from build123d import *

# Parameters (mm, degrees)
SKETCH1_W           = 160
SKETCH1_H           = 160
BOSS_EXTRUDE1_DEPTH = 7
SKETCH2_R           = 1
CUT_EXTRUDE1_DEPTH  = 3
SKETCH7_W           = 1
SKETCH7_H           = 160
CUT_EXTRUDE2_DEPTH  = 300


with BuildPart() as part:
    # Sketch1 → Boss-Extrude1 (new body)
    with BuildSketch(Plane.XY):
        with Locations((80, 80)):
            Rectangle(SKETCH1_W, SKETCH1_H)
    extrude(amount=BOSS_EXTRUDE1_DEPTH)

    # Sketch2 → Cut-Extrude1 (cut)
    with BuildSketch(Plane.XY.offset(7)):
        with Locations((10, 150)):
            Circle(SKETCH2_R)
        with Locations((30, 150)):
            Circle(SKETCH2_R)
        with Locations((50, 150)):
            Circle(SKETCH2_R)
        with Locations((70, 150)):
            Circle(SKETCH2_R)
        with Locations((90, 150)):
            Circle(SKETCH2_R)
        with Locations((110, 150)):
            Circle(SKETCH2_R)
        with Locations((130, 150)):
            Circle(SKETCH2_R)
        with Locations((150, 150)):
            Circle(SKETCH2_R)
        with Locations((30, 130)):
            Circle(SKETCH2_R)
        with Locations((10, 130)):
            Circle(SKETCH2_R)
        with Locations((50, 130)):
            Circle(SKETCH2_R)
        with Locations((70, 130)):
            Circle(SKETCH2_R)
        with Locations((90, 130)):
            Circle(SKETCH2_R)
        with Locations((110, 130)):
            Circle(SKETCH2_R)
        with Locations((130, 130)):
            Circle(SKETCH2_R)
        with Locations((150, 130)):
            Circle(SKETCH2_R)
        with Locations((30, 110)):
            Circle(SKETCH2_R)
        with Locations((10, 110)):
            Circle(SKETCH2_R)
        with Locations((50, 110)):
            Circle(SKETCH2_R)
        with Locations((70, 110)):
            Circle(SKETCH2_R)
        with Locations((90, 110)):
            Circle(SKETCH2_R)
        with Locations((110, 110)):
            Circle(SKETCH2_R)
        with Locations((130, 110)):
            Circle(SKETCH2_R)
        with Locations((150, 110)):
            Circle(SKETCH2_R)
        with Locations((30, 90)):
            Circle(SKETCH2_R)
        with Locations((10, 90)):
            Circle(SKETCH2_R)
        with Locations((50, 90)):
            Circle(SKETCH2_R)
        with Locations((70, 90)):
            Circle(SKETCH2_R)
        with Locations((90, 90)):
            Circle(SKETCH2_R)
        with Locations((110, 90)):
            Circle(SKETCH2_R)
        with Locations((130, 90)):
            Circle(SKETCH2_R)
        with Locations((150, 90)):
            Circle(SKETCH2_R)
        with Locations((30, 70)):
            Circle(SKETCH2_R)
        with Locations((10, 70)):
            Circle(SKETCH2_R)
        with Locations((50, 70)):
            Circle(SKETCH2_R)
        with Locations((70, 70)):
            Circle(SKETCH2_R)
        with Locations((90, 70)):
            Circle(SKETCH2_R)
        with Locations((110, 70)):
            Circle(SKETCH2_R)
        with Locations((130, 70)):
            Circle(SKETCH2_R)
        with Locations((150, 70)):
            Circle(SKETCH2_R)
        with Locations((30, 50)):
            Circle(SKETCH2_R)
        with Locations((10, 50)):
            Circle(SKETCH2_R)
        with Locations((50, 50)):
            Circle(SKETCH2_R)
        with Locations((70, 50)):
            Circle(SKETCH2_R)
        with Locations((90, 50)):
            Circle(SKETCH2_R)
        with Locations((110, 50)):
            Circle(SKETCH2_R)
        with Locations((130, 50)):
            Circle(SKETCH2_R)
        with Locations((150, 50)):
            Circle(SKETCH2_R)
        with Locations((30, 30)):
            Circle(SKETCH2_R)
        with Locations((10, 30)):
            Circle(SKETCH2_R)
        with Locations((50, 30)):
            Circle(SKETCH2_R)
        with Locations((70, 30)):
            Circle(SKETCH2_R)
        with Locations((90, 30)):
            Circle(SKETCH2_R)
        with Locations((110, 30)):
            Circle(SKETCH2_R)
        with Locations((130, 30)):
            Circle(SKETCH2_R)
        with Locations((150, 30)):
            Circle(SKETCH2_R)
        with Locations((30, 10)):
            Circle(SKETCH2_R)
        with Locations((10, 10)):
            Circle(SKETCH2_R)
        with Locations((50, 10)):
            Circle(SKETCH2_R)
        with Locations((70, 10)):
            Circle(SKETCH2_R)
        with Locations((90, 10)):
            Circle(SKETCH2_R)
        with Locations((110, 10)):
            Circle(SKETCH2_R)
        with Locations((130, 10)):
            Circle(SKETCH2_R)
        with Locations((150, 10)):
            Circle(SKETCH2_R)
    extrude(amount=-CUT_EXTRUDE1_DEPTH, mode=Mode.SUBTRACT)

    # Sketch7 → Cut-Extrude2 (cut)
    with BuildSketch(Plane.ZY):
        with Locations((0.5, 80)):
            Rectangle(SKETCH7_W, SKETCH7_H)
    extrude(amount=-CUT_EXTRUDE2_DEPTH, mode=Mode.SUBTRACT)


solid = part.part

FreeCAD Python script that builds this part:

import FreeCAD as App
import Part
import Sketcher

V = App.Vector
Q = App.Units.Quantity

doc = App.newDocument("Part")
params = doc.addObject("Spreadsheet::Sheet", "Params")
for row, (alias, value) in enumerate([
    ("sketch1_width", "160 mm"),
    ("pad1_length", "7 mm"),
    ("sketch2_diameter", "2 mm"),
    ("pocket1_length", "3 mm"),
    ("sketch3_width", "160 mm"),
    ("sketch3_height", "1 mm"),
    ("pocket2_length", "300 mm"),
], start=1):
    params.set(f"A{row}", alias)
    params.set(f"B{row}", "=" + value)
    params.setAlias(f"B{row}", alias)

body = doc.addObject("PartDesign::Body", "Body")

# Sketch on XY plane
sketch1 = body.newObject("Sketcher::SketchObject", "Sketch")
sketch1.AttachmentSupport = (doc.getObject("XY_Plane"), [""])
sketch1.MapMode = "FlatFace"
sketch1.addGeometry([
    Part.LineSegment(V(0, 160, 0), V(0, 0, 0)),
    Part.LineSegment(V(0, 0, 0), V(160, 0, 0)),
    Part.LineSegment(V(160, 0, 0), V(160, 160, 0)),
    Part.LineSegment(V(160, 160, 0), V(0, 160, 0)),
], False)
sketch1.addConstraint([
    Sketcher.Constraint("Coincident", 0, 2, 1, 1),
    Sketcher.Constraint("Coincident", 1, 2, 2, 1),
    Sketcher.Constraint("Coincident", 2, 2, 3, 1),
    Sketcher.Constraint("Coincident", 3, 2, 0, 1),
    Sketcher.Constraint("Vertical", 0),
    Sketcher.Constraint("Horizontal", 1),
    Sketcher.Constraint("Vertical", 2),
    Sketcher.Constraint("Horizontal", 3),
    Sketcher.Constraint("Coincident", 0, 2, -1, 1),
    Sketcher.Constraint("Equal", 3, 0),
    Sketcher.Constraint("DistanceX", 1, 1, 1, 2, Q("160 mm")),
])
sketch1.setExpression("Constraints[10]", "Params.sketch1_width")
pad1 = body.newObject("PartDesign::Pad", "Pad")
pad1.Profile = sketch1
pad1.setExpression("Length", "Params.pad1_length")

# Sketch on XY plane
sketch2 = body.newObject("Sketcher::SketchObject", "Sketch001")
sketch2.AttachmentSupport = (doc.getObject("XY_Plane"), [""])
sketch2.MapMode = "FlatFace"
sketch2.AttachmentOffset = App.Placement(V(0, 0, 7), App.Rotation())
sketch2.addGeometry([
    Part.Circle(V(10, 150, 0), V(0, 0, 1), 1),  # 0
    Part.Circle(V(30, 150, 0), V(0, 0, 1), 1),  # 1
    Part.Circle(V(50, 150, 0), V(0, 0, 1), 1),  # 2
    Part.Circle(V(70, 150, 0), V(0, 0, 1), 1),  # 3
    Part.Circle(V(90, 150, 0), V(0, 0, 1), 1),  # 4
    Part.Circle(V(110, 150, 0), V(0, 0, 1), 1),  # 5
    Part.Circle(V(130, 150, 0), V(0, 0, 1), 1),  # 6
    Part.Circle(V(150, 150, 0), V(0, 0, 1), 1),  # 7
    Part.Circle(V(30, 130, 0), V(0, 0, 1), 1),  # 8
    Part.Circle(V(10, 130, 0), V(0, 0, 1), 1),  # 9
    Part.Circle(V(50, 130, 0), V(0, 0, 1), 1),  # 10
    Part.Circle(V(70, 130, 0), V(0, 0, 1), 1),  # 11
    Part.Circle(V(90, 130, 0), V(0, 0, 1), 1),  # 12
    Part.Circle(V(110, 130, 0), V(0, 0, 1), 1),  # 13
    Part.Circle(V(130, 130, 0), V(0, 0, 1), 1),  # 14
    Part.Circle(V(150, 130, 0), V(0, 0, 1), 1),  # 15
    Part.Circle(V(30, 110, 0), V(0, 0, 1), 1),  # 16
    Part.Circle(V(10, 110, 0), V(0, 0, 1), 1),  # 17
    Part.Circle(V(50, 110, 0), V(0, 0, 1), 1),  # 18
    Part.Circle(V(70, 110, 0), V(0, 0, 1), 1),  # 19
    Part.Circle(V(90, 110, 0), V(0, 0, 1), 1),  # 20
    Part.Circle(V(110, 110, 0), V(0, 0, 1), 1),  # 21
    Part.Circle(V(130, 110, 0), V(0, 0, 1), 1),  # 22
    Part.Circle(V(150, 110, 0), V(0, 0, 1), 1),  # 23
    Part.Circle(V(30, 90, 0), V(0, 0, 1), 1),  # 24
    Part.Circle(V(10, 90, 0), V(0, 0, 1), 1),  # 25
    Part.Circle(V(50, 90, 0), V(0, 0, 1), 1),  # 26
    Part.Circle(V(70, 90, 0), V(0, 0, 1), 1),  # 27
    Part.Circle(V(90, 90, 0), V(0, 0, 1), 1),  # 28
    Part.Circle(V(110, 90, 0), V(0, 0, 1), 1),  # 29
    Part.Circle(V(130, 90, 0), V(0, 0, 1), 1),  # 30
    Part.Circle(V(150, 90, 0), V(0, 0, 1), 1),  # 31
    Part.Circle(V(30, 70, 0), V(0, 0, 1), 1),  # 32
    Part.Circle(V(10, 70, 0), V(0, 0, 1), 1),  # 33
    Part.Circle(V(50, 70, 0), V(0, 0, 1), 1),  # 34
    Part.Circle(V(70, 70, 0), V(0, 0, 1), 1),  # 35
    Part.Circle(V(90, 70, 0), V(0, 0, 1), 1),  # 36
    Part.Circle(V(110, 70, 0), V(0, 0, 1), 1),  # 37
    Part.Circle(V(130, 70, 0), V(0, 0, 1), 1),  # 38
    Part.Circle(V(150, 70, 0), V(0, 0, 1), 1),  # 39
    Part.Circle(V(30, 50, 0), V(0, 0, 1), 1),  # 40
    Part.Circle(V(10, 50, 0), V(0, 0, 1), 1),  # 41
    Part.Circle(V(50, 50, 0), V(0, 0, 1), 1),  # 42
    Part.Circle(V(70, 50, 0), V(0, 0, 1), 1),  # 43
    Part.Circle(V(90, 50, 0), V(0, 0, 1), 1),  # 44
    Part.Circle(V(110, 50, 0), V(0, 0, 1), 1),  # 45
    Part.Circle(V(130, 50, 0), V(0, 0, 1), 1),  # 46
    Part.Circle(V(150, 50, 0), V(0, 0, 1), 1),  # 47
    Part.Circle(V(30, 30, 0), V(0, 0, 1), 1),  # 48
    Part.Circle(V(10, 30, 0), V(0, 0, 1), 1),  # 49
    Part.Circle(V(50, 30, 0), V(0, 0, 1), 1),  # 50
    Part.Circle(V(70, 30, 0), V(0, 0, 1), 1),  # 51
    Part.Circle(V(90, 30, 0), V(0, 0, 1), 1),  # 52
    Part.Circle(V(110, 30, 0), V(0, 0, 1), 1),  # 53
    Part.Circle(V(130, 30, 0), V(0, 0, 1), 1),  # 54
    Part.Circle(V(150, 30, 0), V(0, 0, 1), 1),  # 55
    Part.Circle(V(30, 10, 0), V(0, 0, 1), 1),  # 56
    Part.Circle(V(10, 10, 0), V(0, 0, 1), 1),  # 57
    Part.Circle(V(50, 10, 0), V(0, 0, 1), 1),  # 58
    Part.Circle(V(70, 10, 0), V(0, 0, 1), 1),  # 59
    Part.Circle(V(90, 10, 0), V(0, 0, 1), 1),  # 60
    Part.Circle(V(110, 10, 0), V(0, 0, 1), 1),  # 61
    Part.Circle(V(130, 10, 0), V(0, 0, 1), 1),  # 62
    Part.Circle(V(150, 10, 0), V(0, 0, 1), 1),  # 63
], False)
sketch2.addConstraint([
    Sketcher.Constraint("Equal", 0, 1),
    Sketcher.Constraint("Equal", 1, 2),
    Sketcher.Constraint("Equal", 2, 3),
    Sketcher.Constraint("Equal", 3, 4),
    Sketcher.Constraint("Equal", 4, 5),
    Sketcher.Constraint("Equal", 5, 6),
    Sketcher.Constraint("Equal", 6, 7),
    Sketcher.Constraint("Equal", 7, 8),
    Sketcher.Constraint("Equal", 8, 9),
    Sketcher.Constraint("Equal", 9, 10),
    Sketcher.Constraint("Equal", 10, 11),
    Sketcher.Constraint("Equal", 11, 12),
    Sketcher.Constraint("Equal", 12, 13),
    Sketcher.Constraint("Equal", 13, 14),
    Sketcher.Constraint("Equal", 14, 15),
    Sketcher.Constraint("Equal", 15, 16),
    Sketcher.Constraint("Equal", 16, 17),
    Sketcher.Constraint("Equal", 17, 18),
    Sketcher.Constraint("Equal", 18, 19),
    Sketcher.Constraint("Equal", 19, 20),
    Sketcher.Constraint("Equal", 20, 21),
    Sketcher.Constraint("Equal", 21, 22),
    Sketcher.Constraint("Equal", 22, 23),
    Sketcher.Constraint("Equal", 23, 24),
    Sketcher.Constraint("Equal", 24, 25),
    Sketcher.Constraint("Equal", 25, 26),
    Sketcher.Constraint("Equal", 26, 27),
    Sketcher.Constraint("Equal", 27, 28),
    Sketcher.Constraint("Equal", 28, 29),
    Sketcher.Constraint("Equal", 29, 30),
    Sketcher.Constraint("Equal", 30, 31),
    Sketcher.Constraint("Equal", 31, 32),
    Sketcher.Constraint("Equal", 32, 33),
    Sketcher.Constraint("Equal", 33, 34),
    Sketcher.Constraint("Equal", 34, 35),
    Sketcher.Constraint("Equal", 35, 36),
    Sketcher.Constraint("Equal", 36, 37),
    Sketcher.Constraint("Equal", 37, 38),
    Sketcher.Constraint("Equal", 38, 39),
    Sketcher.Constraint("Equal", 39, 40),
    Sketcher.Constraint("Equal", 40, 41),
    Sketcher.Constraint("Equal", 41, 42),
    Sketcher.Constraint("Equal", 42, 43),
    Sketcher.Constraint("Equal", 43, 44),
    Sketcher.Constraint("Equal", 44, 45),
    Sketcher.Constraint("Equal", 45, 46),
    Sketcher.Constraint("Equal", 46, 47),
    Sketcher.Constraint("Equal", 47, 48),
    Sketcher.Constraint("Equal", 48, 49),
    Sketcher.Constraint("Equal", 49, 50),
    Sketcher.Constraint("Equal", 50, 51),
    Sketcher.Constraint("Equal", 51, 52),
    Sketcher.Constraint("Equal", 52, 53),
    Sketcher.Constraint("Equal", 53, 54),
    Sketcher.Constraint("Equal", 54, 55),
    Sketcher.Constraint("Equal", 55, 56),
    Sketcher.Constraint("Equal", 56, 57),
    Sketcher.Constraint("Equal", 57, 58),
    Sketcher.Constraint("Equal", 58, 59),
    Sketcher.Constraint("Equal", 59, 60),
    Sketcher.Constraint("Equal", 60, 61),
    Sketcher.Constraint("Equal", 61, 62),
    Sketcher.Constraint("Equal", 62, 63),
    Sketcher.Constraint("Horizontal", 0, 3, 1, 3),
    Sketcher.Constraint("Horizontal", 1, 3, 2, 3),
    Sketcher.Constraint("Horizontal", 2, 3, 3, 3),
    Sketcher.Constraint("Horizontal", 3, 3, 4, 3),
    Sketcher.Constraint("Horizontal", 4, 3, 5, 3),
    Sketcher.Constraint("Horizontal", 5, 3, 6, 3),
    Sketcher.Constraint("Horizontal", 6, 3, 7, 3),
    Sketcher.Constraint("Horizontal", 8, 3, 9, 3),
    Sketcher.Constraint("Horizontal", 9, 3, 10, 3),
    Sketcher.Constraint("Horizontal", 10, 3, 11, 3),
    Sketcher.Constraint("Horizontal", 11, 3, 12, 3),
    Sketcher.Constraint("Horizontal", 12, 3, 13, 3),
    Sketcher.Constraint("Horizontal", 13, 3, 14, 3),
    Sketcher.Constraint("Horizontal", 14, 3, 15, 3),
    Sketcher.Constraint("Horizontal", 16, 3, 17, 3),
    Sketcher.Constraint("Horizontal", 17, 3, 18, 3),
    Sketcher.Constraint("Horizontal", 18, 3, 19, 3),
    Sketcher.Constraint("Horizontal", 19, 3, 20, 3),
    Sketcher.Constraint("Horizontal", 20, 3, 21, 3),
    Sketcher.Constraint("Horizontal", 21, 3, 22, 3),
    Sketcher.Constraint("Horizontal", 22, 3, 23, 3),
    Sketcher.Constraint("Horizontal", 24, 3, 25, 3),
    Sketcher.Constraint("Horizontal", 25, 3, 26, 3),
    Sketcher.Constraint("Horizontal", 26, 3, 27, 3),
    Sketcher.Constraint("Horizontal", 27, 3, 28, 3),
    Sketcher.Constraint("Horizontal", 28, 3, 29, 3),
    Sketcher.Constraint("Horizontal", 29, 3, 30, 3),
    Sketcher.Constraint("Horizontal", 30, 3, 31, 3),
    Sketcher.Constraint("Horizontal", 32, 3, 33, 3),
    Sketcher.Constraint("Horizontal", 33, 3, 34, 3),
    Sketcher.Constraint("Horizontal", 34, 3, 35, 3),
    Sketcher.Constraint("Horizontal", 35, 3, 36, 3),
    Sketcher.Constraint("Horizontal", 36, 3, 37, 3),
    Sketcher.Constraint("Horizontal", 37, 3, 38, 3),
    Sketcher.Constraint("Horizontal", 38, 3, 39, 3),
    Sketcher.Constraint("Horizontal", 40, 3, 41, 3),
    Sketcher.Constraint("Horizontal", 41, 3, 42, 3),
    Sketcher.Constraint("Horizontal", 42, 3, 43, 3),
    Sketcher.Constraint("Horizontal", 43, 3, 44, 3),
    Sketcher.Constraint("Horizontal", 44, 3, 45, 3),
    Sketcher.Constraint("Horizontal", 45, 3, 46, 3),
    Sketcher.Constraint("Horizontal", 46, 3, 47, 3),
    Sketcher.Constraint("Horizontal", 48, 3, 49, 3),
    Sketcher.Constraint("Horizontal", 49, 3, 50, 3),
    Sketcher.Constraint("Horizontal", 50, 3, 51, 3),
    Sketcher.Constraint("Horizontal", 51, 3, 52, 3),
    Sketcher.Constraint("Horizontal", 52, 3, 53, 3),
    Sketcher.Constraint("Horizontal", 53, 3, 54, 3),
    Sketcher.Constraint("Horizontal", 54, 3, 55, 3),
    Sketcher.Constraint("Horizontal", 56, 3, 57, 3),
    Sketcher.Constraint("Horizontal", 57, 3, 58, 3),
    Sketcher.Constraint("Horizontal", 58, 3, 59, 3),
    Sketcher.Constraint("Horizontal", 59, 3, 60, 3),
    Sketcher.Constraint("Horizontal", 60, 3, 61, 3),
    Sketcher.Constraint("Horizontal", 61, 3, 62, 3),
    Sketcher.Constraint("Horizontal", 62, 3, 63, 3),
    Sketcher.Constraint("Vertical", 1, 3, 8, 3),
    Sketcher.Constraint("Vertical", 0, 3, 9, 3),
    Sketcher.Constraint("Vertical", 2, 3, 10, 3),
    Sketcher.Constraint("Vertical", 3, 3, 11, 3),
    Sketcher.Constraint("Vertical", 4, 3, 12, 3),
    Sketcher.Constraint("Vertical", 5, 3, 13, 3),
    Sketcher.Constraint("Vertical", 6, 3, 14, 3),
    Sketcher.Constraint("Vertical", 7, 3, 15, 3),
    Sketcher.Constraint("Vertical", 8, 3, 16, 3),
    Sketcher.Constraint("Vertical", 9, 3, 17, 3),
    Sketcher.Constraint("Vertical", 10, 3, 18, 3),
    Sketcher.Constraint("Vertical", 11, 3, 19, 3),
    Sketcher.Constraint("Vertical", 12, 3, 20, 3),
    Sketcher.Constraint("Vertical", 13, 3, 21, 3),
    Sketcher.Constraint("Vertical", 14, 3, 22, 3),
    Sketcher.Constraint("Vertical", 15, 3, 23, 3),
    Sketcher.Constraint("Vertical", 16, 3, 24, 3),
    Sketcher.Constraint("Vertical", 17, 3, 25, 3),
    Sketcher.Constraint("Vertical", 18, 3, 26, 3),
    Sketcher.Constraint("Vertical", 19, 3, 27, 3),
    Sketcher.Constraint("Vertical", 20, 3, 28, 3),
    Sketcher.Constraint("Vertical", 21, 3, 29, 3),
    Sketcher.Constraint("Vertical", 22, 3, 30, 3),
    Sketcher.Constraint("Vertical", 23, 3, 31, 3),
    Sketcher.Constraint("Vertical", 24, 3, 32, 3),
    Sketcher.Constraint("Vertical", 25, 3, 33, 3),
    Sketcher.Constraint("Vertical", 26, 3, 34, 3),
    Sketcher.Constraint("Vertical", 27, 3, 35, 3),
    Sketcher.Constraint("Vertical", 28, 3, 36, 3),
    Sketcher.Constraint("Vertical", 29, 3, 37, 3),
    Sketcher.Constraint("Vertical", 30, 3, 38, 3),
    Sketcher.Constraint("Vertical", 31, 3, 39, 3),
    Sketcher.Constraint("Vertical", 32, 3, 40, 3),
    Sketcher.Constraint("Vertical", 33, 3, 41, 3),
    Sketcher.Constraint("Vertical", 34, 3, 42, 3),
    Sketcher.Constraint("Vertical", 35, 3, 43, 3),
    Sketcher.Constraint("Vertical", 36, 3, 44, 3),
    Sketcher.Constraint("Vertical", 37, 3, 45, 3),
    Sketcher.Constraint("Vertical", 38, 3, 46, 3),
    Sketcher.Constraint("Vertical", 39, 3, 47, 3),
    Sketcher.Constraint("Vertical", 40, 3, 48, 3),
    Sketcher.Constraint("Vertical", 41, 3, 49, 3),
    Sketcher.Constraint("Vertical", 42, 3, 50, 3),
    Sketcher.Constraint("Vertical", 43, 3, 51, 3),
    Sketcher.Constraint("Vertical", 44, 3, 52, 3),
    Sketcher.Constraint("Vertical", 45, 3, 53, 3),
    Sketcher.Constraint("Vertical", 46, 3, 54, 3),
    Sketcher.Constraint("Vertical", 47, 3, 55, 3),
    Sketcher.Constraint("Vertical", 48, 3, 56, 3),
    Sketcher.Constraint("Vertical", 49, 3, 57, 3),
    Sketcher.Constraint("Vertical", 50, 3, 58, 3),
    Sketcher.Constraint("Vertical", 51, 3, 59, 3),
    Sketcher.Constraint("Vertical", 52, 3, 60, 3),
    Sketcher.Constraint("Vertical", 53, 3, 61, 3),
    Sketcher.Constraint("Vertical", 54, 3, 62, 3),
    Sketcher.Constraint("Vertical", 55, 3, 63, 3),
    Sketcher.Constraint("Diameter", 0, Q("2 mm")),
    Sketcher.Constraint("DistanceX", -1, 1, 0, 3, Q("10 mm")),
    Sketcher.Constraint("DistanceY", -1, 1, 0, 3, Q("150 mm")),
    Sketcher.Constraint("DistanceX", -1, 1, 1, 3, Q("30 mm")),
    Sketcher.Constraint("DistanceX", -1, 1, 2, 3, Q("50 mm")),
    Sketcher.Constraint("DistanceX", -1, 1, 3, 3, Q("70 mm")),
    Sketcher.Constraint("DistanceX", -1, 1, 4, 3, Q("90 mm")),
    Sketcher.Constraint("DistanceX", -1, 1, 5, 3, Q("110 mm")),
    Sketcher.Constraint("DistanceX", -1, 1, 6, 3, Q("130 mm")),
    Sketcher.Constraint("DistanceX", -1, 1, 7, 3, Q("150 mm")),
    Sketcher.Constraint("DistanceY", -1, 1, 8, 3, Q("130 mm")),
    Sketcher.Constraint("DistanceY", -1, 1, 16, 3, Q("110 mm")),
    Sketcher.Constraint("DistanceY", -1, 1, 24, 3, Q("90 mm")),
    Sketcher.Constraint("DistanceY", -1, 1, 32, 3, Q("70 mm")),
    Sketcher.Constraint("DistanceY", -1, 1, 40, 3, Q("50 mm")),
    Sketcher.Constraint("DistanceY", -1, 1, 48, 3, Q("30 mm")),
    Sketcher.Constraint("DistanceY", -1, 1, 56, 3, Q("10 mm")),
])
sketch2.setExpression("Constraints[175]", "Params.sketch2_diameter")
pocket1 = body.newObject("PartDesign::Pocket", "Pocket")
pocket1.Profile = sketch2
pocket1.setExpression("Length", "Params.pocket1_length")

# Sketch on YZ plane
sketch3 = body.newObject("Sketcher::SketchObject", "Sketch002")
sketch3.AttachmentSupport = (doc.getObject("YZ_Plane"), [""])
sketch3.MapMode = "FlatFace"
sketch3.addGeometry([
    Part.LineSegment(V(160, 0, 0), V(0, 0, 0)),
    Part.LineSegment(V(0, 0, 0), V(0, 1, 0)),
    Part.LineSegment(V(0, 1, 0), V(160, 1, 0)),
    Part.LineSegment(V(160, 1, 0), V(160, 0, 0)),
], False)
sketch3.addConstraint([
    Sketcher.Constraint("Coincident", 0, 2, 1, 1),
    Sketcher.Constraint("Coincident", 1, 2, 2, 1),
    Sketcher.Constraint("Coincident", 2, 2, 3, 1),
    Sketcher.Constraint("Coincident", 3, 2, 0, 1),
    Sketcher.Constraint("Horizontal", 0),
    Sketcher.Constraint("Vertical", 1),
    Sketcher.Constraint("Horizontal", 2),
    Sketcher.Constraint("Vertical", 3),
    Sketcher.Constraint("Coincident", 0, 2, -1, 1),
    Sketcher.Constraint("DistanceX", 0, 2, 0, 1, Q("160 mm")),
    Sketcher.Constraint("DistanceY", 1, 1, 1, 2, Q("1 mm")),
])
sketch3.setExpression("Constraints[9]", "Params.sketch3_width")
sketch3.setExpression("Constraints[10]", "Params.sketch3_height")
pocket2 = body.newObject("PartDesign::Pocket", "Pocket001")
pocket2.Profile = sketch3
pocket2.setExpression("Length", "Params.pocket2_length")
pocket2.Reversed = True

doc.recompute()
